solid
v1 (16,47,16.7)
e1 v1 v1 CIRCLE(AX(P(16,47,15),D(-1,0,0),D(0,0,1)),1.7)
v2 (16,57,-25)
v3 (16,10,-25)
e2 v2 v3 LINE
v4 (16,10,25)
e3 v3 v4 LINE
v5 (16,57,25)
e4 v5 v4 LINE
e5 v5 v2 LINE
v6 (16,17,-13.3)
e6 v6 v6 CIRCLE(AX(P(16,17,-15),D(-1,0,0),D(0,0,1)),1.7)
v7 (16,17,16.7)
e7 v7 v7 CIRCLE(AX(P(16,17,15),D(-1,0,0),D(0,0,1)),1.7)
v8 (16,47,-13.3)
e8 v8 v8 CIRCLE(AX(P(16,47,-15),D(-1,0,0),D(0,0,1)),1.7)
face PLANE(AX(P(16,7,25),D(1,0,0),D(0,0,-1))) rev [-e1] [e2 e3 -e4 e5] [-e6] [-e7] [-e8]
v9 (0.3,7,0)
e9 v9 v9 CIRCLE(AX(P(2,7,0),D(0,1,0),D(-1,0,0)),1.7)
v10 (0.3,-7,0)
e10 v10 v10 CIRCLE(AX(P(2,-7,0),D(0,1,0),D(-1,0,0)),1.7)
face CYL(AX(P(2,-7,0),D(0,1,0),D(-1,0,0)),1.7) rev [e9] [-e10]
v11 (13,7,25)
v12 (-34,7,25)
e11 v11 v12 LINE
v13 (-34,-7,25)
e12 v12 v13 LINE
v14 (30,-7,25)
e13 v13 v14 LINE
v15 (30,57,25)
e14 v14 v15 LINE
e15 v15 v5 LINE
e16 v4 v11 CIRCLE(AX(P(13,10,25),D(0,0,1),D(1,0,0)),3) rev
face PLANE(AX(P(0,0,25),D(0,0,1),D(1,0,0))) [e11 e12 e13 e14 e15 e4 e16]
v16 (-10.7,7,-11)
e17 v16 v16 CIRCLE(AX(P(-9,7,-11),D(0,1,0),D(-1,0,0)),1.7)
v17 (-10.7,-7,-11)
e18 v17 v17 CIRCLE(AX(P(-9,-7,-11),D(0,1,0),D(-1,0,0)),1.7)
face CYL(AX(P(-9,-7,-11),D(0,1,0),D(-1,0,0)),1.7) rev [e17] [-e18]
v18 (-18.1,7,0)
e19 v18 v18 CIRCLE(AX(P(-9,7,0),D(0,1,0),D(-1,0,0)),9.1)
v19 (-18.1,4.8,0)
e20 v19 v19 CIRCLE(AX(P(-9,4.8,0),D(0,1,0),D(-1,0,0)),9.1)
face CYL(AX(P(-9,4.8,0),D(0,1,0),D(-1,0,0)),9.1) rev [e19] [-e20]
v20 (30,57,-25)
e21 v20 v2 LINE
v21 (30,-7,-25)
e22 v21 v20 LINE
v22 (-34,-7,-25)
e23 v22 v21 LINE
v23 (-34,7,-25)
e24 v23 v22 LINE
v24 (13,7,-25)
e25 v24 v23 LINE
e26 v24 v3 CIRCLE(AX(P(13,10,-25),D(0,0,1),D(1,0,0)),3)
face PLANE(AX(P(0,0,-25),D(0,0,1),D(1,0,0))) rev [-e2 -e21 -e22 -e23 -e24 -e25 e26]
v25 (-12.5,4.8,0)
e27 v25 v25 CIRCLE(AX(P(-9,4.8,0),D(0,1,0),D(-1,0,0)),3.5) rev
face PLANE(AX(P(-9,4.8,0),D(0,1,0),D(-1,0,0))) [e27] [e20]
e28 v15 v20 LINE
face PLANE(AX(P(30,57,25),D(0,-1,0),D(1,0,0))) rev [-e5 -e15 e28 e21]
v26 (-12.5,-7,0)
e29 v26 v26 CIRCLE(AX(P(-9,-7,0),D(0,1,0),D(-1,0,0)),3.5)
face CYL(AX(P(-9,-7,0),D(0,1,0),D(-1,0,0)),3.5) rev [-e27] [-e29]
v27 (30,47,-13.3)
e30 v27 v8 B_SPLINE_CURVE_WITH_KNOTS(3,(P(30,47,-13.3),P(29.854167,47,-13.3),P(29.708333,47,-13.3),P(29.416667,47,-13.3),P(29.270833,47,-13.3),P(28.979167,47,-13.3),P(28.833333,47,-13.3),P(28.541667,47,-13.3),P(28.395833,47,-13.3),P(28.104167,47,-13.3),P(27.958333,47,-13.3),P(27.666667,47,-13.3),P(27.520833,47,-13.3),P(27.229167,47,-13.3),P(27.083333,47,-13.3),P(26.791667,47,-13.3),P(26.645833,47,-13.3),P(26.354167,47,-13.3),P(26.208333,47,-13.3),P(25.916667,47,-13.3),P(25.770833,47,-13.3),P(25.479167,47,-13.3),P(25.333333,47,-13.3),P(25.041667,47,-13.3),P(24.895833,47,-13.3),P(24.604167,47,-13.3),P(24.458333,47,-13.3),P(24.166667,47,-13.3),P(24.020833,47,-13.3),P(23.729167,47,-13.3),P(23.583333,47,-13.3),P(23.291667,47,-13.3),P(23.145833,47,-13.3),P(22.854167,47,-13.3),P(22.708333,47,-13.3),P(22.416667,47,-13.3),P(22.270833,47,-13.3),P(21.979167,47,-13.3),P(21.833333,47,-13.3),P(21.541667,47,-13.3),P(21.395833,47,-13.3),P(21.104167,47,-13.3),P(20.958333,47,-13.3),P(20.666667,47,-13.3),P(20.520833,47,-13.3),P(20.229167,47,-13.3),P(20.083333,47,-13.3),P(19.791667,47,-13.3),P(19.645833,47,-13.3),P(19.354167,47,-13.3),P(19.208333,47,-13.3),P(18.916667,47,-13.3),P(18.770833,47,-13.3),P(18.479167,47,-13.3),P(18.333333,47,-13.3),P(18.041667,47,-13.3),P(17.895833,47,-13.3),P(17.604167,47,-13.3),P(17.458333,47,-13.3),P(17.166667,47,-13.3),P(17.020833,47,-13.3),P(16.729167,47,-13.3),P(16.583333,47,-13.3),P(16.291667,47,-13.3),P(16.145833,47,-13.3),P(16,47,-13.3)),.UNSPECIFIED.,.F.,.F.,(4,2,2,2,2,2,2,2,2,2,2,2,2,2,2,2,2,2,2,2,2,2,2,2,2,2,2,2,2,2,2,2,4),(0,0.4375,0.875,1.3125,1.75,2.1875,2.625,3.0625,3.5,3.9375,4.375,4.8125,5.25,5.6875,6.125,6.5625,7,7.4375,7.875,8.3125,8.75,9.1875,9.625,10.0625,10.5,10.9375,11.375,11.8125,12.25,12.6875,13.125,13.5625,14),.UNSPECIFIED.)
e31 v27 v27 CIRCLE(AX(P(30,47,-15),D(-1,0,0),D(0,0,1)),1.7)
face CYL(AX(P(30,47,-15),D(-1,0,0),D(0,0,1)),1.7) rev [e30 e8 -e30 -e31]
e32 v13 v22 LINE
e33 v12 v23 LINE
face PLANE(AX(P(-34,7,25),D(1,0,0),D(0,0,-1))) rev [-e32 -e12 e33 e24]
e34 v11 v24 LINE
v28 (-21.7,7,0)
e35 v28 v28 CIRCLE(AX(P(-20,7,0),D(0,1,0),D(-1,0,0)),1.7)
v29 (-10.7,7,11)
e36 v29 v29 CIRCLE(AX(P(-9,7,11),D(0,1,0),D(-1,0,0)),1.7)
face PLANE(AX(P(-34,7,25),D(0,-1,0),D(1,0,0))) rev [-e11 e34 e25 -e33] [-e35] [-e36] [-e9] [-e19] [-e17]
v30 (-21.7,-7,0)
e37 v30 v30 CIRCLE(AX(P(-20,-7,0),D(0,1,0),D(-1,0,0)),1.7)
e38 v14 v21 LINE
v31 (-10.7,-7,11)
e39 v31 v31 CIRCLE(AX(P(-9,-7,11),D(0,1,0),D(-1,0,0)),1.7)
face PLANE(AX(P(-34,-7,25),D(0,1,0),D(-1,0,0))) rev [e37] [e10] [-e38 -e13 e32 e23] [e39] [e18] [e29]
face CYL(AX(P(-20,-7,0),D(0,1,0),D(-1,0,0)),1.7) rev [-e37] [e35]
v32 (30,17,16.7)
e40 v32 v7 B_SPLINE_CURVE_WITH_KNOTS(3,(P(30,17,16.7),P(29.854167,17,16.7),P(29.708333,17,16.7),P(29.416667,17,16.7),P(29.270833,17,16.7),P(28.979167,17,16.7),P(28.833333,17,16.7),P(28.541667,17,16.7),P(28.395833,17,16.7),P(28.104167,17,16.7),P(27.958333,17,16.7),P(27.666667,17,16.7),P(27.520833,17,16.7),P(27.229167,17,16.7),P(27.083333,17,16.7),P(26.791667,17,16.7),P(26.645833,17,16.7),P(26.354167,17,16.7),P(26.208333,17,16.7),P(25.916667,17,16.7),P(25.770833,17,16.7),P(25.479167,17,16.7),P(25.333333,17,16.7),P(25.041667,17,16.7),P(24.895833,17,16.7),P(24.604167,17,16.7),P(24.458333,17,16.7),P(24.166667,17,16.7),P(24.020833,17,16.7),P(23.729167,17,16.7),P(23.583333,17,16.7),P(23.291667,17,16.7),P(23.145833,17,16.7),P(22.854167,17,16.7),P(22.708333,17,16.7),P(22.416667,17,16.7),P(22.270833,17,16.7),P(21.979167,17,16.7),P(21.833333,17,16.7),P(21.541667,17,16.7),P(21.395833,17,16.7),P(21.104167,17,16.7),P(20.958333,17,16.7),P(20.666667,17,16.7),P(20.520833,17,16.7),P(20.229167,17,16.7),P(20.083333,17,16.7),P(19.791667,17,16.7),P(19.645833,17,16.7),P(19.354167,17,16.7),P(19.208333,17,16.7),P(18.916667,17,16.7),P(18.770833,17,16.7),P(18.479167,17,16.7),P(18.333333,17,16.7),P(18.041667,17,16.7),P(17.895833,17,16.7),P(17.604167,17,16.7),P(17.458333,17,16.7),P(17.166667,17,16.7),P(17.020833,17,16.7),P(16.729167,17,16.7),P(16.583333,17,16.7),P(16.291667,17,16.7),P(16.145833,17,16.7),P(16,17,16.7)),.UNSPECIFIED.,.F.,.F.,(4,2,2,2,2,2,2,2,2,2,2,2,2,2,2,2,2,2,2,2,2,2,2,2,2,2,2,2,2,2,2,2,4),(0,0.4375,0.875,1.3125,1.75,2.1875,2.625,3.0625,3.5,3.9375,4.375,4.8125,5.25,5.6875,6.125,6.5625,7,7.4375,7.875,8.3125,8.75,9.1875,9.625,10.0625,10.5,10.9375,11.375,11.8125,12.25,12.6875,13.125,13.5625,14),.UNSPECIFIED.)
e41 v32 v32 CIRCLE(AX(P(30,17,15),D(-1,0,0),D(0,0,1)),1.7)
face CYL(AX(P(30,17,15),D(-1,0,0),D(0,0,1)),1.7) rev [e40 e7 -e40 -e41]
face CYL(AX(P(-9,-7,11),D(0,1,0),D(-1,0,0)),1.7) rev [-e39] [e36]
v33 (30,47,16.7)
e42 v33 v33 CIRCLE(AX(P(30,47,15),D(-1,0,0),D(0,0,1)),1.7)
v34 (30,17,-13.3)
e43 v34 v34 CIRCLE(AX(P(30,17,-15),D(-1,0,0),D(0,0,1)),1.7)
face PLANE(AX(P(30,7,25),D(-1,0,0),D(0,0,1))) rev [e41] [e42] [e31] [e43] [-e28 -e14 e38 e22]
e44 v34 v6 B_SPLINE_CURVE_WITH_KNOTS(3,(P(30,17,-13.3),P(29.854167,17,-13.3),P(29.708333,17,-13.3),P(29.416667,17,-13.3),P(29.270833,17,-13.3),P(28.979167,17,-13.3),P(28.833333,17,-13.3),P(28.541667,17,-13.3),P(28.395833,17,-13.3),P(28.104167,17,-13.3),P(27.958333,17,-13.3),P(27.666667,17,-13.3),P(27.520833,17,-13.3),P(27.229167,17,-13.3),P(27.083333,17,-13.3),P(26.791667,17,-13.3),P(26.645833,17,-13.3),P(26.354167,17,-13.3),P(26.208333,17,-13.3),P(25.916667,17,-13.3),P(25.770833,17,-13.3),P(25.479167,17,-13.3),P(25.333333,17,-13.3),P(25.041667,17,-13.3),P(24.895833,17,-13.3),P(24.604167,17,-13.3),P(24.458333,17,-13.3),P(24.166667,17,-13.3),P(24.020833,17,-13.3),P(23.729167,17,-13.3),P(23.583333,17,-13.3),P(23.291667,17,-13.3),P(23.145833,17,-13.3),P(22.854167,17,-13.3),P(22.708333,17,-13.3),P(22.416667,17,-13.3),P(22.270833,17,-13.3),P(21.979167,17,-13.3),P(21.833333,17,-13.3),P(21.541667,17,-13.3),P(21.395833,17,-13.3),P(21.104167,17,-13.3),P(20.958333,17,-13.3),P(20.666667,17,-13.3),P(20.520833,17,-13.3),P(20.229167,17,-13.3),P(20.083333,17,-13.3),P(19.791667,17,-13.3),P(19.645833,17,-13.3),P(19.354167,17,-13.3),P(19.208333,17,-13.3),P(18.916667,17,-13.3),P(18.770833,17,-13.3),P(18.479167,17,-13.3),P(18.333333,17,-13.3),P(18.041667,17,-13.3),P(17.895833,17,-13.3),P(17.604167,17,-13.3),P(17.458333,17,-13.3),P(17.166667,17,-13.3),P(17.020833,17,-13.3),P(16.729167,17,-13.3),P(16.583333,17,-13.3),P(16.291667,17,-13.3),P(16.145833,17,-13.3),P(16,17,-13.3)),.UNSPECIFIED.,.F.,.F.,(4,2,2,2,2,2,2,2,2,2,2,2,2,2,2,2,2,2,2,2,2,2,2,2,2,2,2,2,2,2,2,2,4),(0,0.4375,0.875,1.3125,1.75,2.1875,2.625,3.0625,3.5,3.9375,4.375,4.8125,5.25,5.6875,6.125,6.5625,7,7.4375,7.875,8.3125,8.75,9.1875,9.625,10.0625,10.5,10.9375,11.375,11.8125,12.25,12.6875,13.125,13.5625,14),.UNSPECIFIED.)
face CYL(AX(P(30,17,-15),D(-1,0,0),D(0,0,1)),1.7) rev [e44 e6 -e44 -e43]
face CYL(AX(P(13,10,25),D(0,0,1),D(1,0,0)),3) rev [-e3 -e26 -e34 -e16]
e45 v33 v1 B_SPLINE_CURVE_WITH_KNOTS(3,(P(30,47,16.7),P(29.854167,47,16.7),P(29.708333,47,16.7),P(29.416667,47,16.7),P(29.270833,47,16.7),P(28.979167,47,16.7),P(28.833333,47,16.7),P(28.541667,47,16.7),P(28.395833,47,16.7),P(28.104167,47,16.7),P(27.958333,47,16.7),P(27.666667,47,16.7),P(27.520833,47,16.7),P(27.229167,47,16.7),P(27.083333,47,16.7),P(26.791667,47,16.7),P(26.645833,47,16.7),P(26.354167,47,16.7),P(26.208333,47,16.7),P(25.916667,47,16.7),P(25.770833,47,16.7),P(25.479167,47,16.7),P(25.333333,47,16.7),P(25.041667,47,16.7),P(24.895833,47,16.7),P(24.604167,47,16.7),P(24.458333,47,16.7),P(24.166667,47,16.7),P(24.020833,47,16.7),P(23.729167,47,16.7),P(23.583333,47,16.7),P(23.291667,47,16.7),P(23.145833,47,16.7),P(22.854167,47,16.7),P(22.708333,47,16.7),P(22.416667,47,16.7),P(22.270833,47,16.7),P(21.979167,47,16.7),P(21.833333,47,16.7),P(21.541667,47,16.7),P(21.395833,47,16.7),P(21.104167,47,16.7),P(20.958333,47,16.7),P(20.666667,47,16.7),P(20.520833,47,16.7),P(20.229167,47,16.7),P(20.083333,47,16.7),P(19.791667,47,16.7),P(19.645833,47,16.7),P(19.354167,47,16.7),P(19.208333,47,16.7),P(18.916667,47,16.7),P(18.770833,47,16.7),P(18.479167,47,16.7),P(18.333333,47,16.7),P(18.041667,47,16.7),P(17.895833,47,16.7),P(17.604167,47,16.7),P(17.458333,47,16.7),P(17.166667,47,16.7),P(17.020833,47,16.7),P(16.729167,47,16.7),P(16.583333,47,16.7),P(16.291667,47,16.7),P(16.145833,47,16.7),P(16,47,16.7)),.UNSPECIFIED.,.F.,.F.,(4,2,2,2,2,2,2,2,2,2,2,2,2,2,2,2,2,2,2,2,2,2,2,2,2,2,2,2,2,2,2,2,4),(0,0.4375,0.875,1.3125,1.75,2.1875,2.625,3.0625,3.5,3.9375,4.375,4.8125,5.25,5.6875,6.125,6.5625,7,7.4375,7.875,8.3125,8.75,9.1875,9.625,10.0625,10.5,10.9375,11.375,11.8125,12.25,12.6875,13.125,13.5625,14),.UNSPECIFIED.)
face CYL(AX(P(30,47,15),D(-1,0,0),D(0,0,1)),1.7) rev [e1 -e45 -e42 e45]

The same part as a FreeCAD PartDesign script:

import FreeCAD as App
import Part
import Sketcher


def edges_at(feature, points):
    """Names of the edges that pass closest to the given points."""
    edges = feature.Shape.Edges
    near = lambda p: min(range(len(edges)), key=lambda i: edges[i].distToShape(Part.Vertex(*p))[0])
    return sorted({f"Edge{near(p) + 1}" for p in points})

doc = App.newDocument("Part")
params = doc.addObject("Spreadsheet::Sheet", "Params")
for row, (alias, value) in enumerate([
    ("sketch1_width", "50 mm"),
    ("sketch1_width2", "64 mm"),
    ("pad1_length", "50 mm"),
    ("sketch2_diameter", "7 mm"),
    ("sketch3_diameter", "3.4 mm"),
    ("sketch4_diameter", "3.4 mm"),
    ("sketch5_diameter", "18.2 mm"),
    ("pocket4_length", "2.2 mm"),
    ("fillet_radius", "3 mm"),
], start=1):
    params.set(f"A{row}", alias)
    params.set(f"B{row}", "=" + value)
    params.setAlias(f"B{row}", alias)

body = doc.addObject("PartDesign::Body", "Body")

sketch1 = body.newObject("Sketcher::SketchObject", "Sketch")
sketch1.AttachmentSupport = (doc.getObject("XY_Plane"), [""])
sketch1.MapMode = "FlatFace"
sketch1.addGeometry(Part.LineSegment(App.Vector(16, 7, 0), App.Vector(-34, 7, 0)), False)
sketch1.addGeometry(Part.LineSegment(App.Vector(-34, 7, 0), App.Vector(-34, -7, 0)), False)
sketch1.addGeometry(Part.LineSegment(App.Vector(-34, -7, 0), App.Vector(30, -7, 0)), False)
sketch1.addGeometry(Part.LineSegment(App.Vector(30, -7, 0), App.Vector(30, 57, 0)), False)
sketch1.addGeometry(Part.LineSegment(App.Vector(30, 57, 0), App.Vector(16, 57, 0)), False)
sketch1.addGeometry(Part.LineSegment(App.Vector(16, 57, 0), App.Vector(16, 7, 0)), False)
sketch1.addConstraint(Sketcher.Constraint("Coincident", 0, 2, 1, 1))
sketch1.addConstraint(Sketcher.Constraint("Coincident", 1, 2, 2, 1))
sketch1.addConstraint(Sketcher.Constraint("Coincident", 2, 2, 3, 1))
sketch1.addConstraint(Sketcher.Constraint("Coincident", 3, 2, 4, 1))
sketch1.addConstraint(Sketcher.Constraint("Coincident", 4, 2, 5, 1))
sketch1.addConstraint(Sketcher.Constraint("Coincident", 5, 2, 0, 1))
sketch1.addConstraint(Sketcher.Constraint("Horizontal", 0))
sketch1.addConstraint(Sketcher.Constraint("Vertical", 1))
sketch1.addConstraint(Sketcher.Constraint("Horizontal", 2))
sketch1.addConstraint(Sketcher.Constraint("Vertical", 3))
sketch1.addConstraint(Sketcher.Constraint("Horizontal", 4))
sketch1.addConstraint(Sketcher.Constraint("Vertical", 5))
sketch1.addConstraint(Sketcher.Constraint("Equal", 4, 1))
sketch1.addConstraint(Sketcher.Constraint("Equal", 2, 3))
sketch1.addConstraint(Sketcher.Constraint("DistanceX", 0, 2, 0, 1, 50.0))
sketch1.addConstraint(Sketcher.Constraint("DistanceX", 2, 1, 2, 2, 64.0))
sketch1.addConstraint(Sketcher.Constraint("DistanceX", 0, 2, -1, 1, 34.0))
sketch1.addConstraint(Sketcher.Constraint("DistanceY", -1, 1, 0, 2, 7.0))
sketch1.setExpression("Constraints[14]", "Params.sketch1_width")
sketch1.setExpression("Constraints[15]", "Params.sketch1_width2")
pad1 = body.newObject("PartDesign::Pad", "Pad")
pad1.Profile = sketch1
pad1.setExpression("Length", "Params.pad1_length")
pad1.Midplane = True

sketch2 = body.newObject("Sketcher::SketchObject", "Sketch001")
sketch2.AttachmentSupport = (doc.getObject("XZ_Plane"), [""])
sketch2.MapMode = "FlatFace"
sketch2.AttachmentOffset = App.Placement(App.Vector(0, 0, -7), App.Rotation())
sketch2.addGeometry(Part.Circle(App.Vector(-9, 0, 0), App.Vector(0, 0, 1), 3.5), False)
sketch2.addConstraint(Sketcher.Constraint("PointOnObject", 0, 3, -1))
sketch2.addConstraint(Sketcher.Constraint("Diameter", 0, 7.0))
sketch2.addConstraint(Sketcher.Constraint("DistanceX", 0, 3, -1, 1, 9.0))
sketch2.setExpression("Constraints[1]", "Params.sketch2_diameter")
pocket1 = body.newObject("PartDesign::Pocket", "Pocket")
pocket1.Profile = sketch2
pocket1.Type = "ThroughAll"
pocket1.Reversed = True

sketch3 = body.newObject("Sketcher::SketchObject", "Sketch002")
sketch3.AttachmentSupport = (doc.getObject("XZ_Plane"), [""])
sketch3.MapMode = "FlatFace"
sketch3.AttachmentOffset = App.Placement(App.Vector(0, 0, -7), App.Rotation())
sketch3.addGeometry(Part.Circle(App.Vector(-9, -11, 0), App.Vector(0, 0, 1), 1.7), False)
sketch3.addGeometry(Part.Circle(App.Vector(-20, 0, 0), App.Vector(0, 0, 1), 1.7), False)
sketch3.addGeometry(Part.Circle(App.Vector(-9, 11, 0), App.Vector(0, 0, 1), 1.7), False)
sketch3.addGeometry(Part.Circle(App.Vector(2, 0, 0), App.Vector(0, 0, 1), 1.7), False)
sketch3.addConstraint(Sketcher.Constraint("Equal", 0, 1))
sketch3.addConstraint(Sketcher.Constraint("Equal", 1, 2))
sketch3.addConstraint(Sketcher.Constraint("Equal", 2, 3))
sketch3.addConstraint(Sketcher.Constraint("Symmetric", 0, 3, 2, 3, -1))
sketch3.addConstraint(Sketcher.Constraint("PointOnObject", 1, 3, -1))
sketch3.addConstraint(Sketcher.Constraint("PointOnObject", 3, 3, -1))
sketch3.addConstraint(Sketcher.Constraint("Diameter", 0, 3.4))
sketch3.addConstraint(Sketcher.Constraint("DistanceX", 0, 3, -1, 1, 9.0))
sketch3.addConstraint(Sketcher.Constraint("DistanceY", 0, 3, -1, 1, 11.0))
sketch3.addConstraint(Sketcher.Constraint("DistanceX", 1, 3, -1, 1, 20.0))
sketch3.addConstraint(Sketcher.Constraint("DistanceX", -1, 1, 3, 3, 2.0))
sketch3.setExpression("Constraints[6]", "Params.sketch3_diameter")
pocket2 = body.newObject("PartDesign::Pocket", "Pocket001")
pocket2.Profile = sketch3
pocket2.Type = "ThroughAll"
pocket2.Reversed = True

sketch4 = body.newObject("Sketcher::SketchObject", "Sketch003")
sketch4.AttachmentSupport = (doc.getObject("YZ_Plane"), [""])
sketch4.MapMode = "FlatFace"
sketch4.AttachmentOffset = App.Placement(App.Vector(0, 0, 16), App.Rotation())
sketch4.addGeometry(Part.Circle(App.Vector(47, -15, 0), App.Vector(0, 0, 1), 1.7), False)
sketch4.addGeometry(Part.Circle(App.Vector(17, -15, 0), App.Vector(0, 0, 1), 1.7), False)
sketch4.addGeometry(Part.Circle(App.Vector(17, 15, 0), App.Vector(0, 0, 1), 1.7), False)
sketch4.addGeometry(Part.Circle(App.Vector(47, 15, 0), App.Vector(0, 0, 1), 1.7), False)
sketch4.addConstraint(Sketcher.Constraint("Equal", 0, 1))
sketch4.addConstraint(Sketcher.Constraint("Equal", 1, 2))
sketch4.addConstraint(Sketcher.Constraint("Equal", 2, 3))
sketch4.addConstraint(Sketcher.Constraint("Symmetric", 1, 3, 2, 3, -1))
sketch4.addConstraint(Sketcher.Constraint("Symmetric", 0, 3, 3, 3, -1))
sketch4.addConstraint(Sketcher.Constraint("Horizontal", 0, 3, 1, 3))
sketch4.addConstraint(Sketcher.Constraint("Diameter", 0, 3.4))
sketch4.addConstraint(Sketcher.Constraint("DistanceX", -1, 1, 0, 3, 47.0))
sketch4.addConstraint(Sketcher.Constraint("DistanceY", 0, 3, -1, 1, 15.0))
sketch4.addConstraint(Sketcher.Constraint("DistanceX", -1, 1, 1, 3, 17.0))
sketch4.setExpression("Constraints[6]", "Params.sketch4_diameter")
pocket3 = body.newObject("PartDesign::Pocket", "Pocket002")
pocket3.Profile = sketch4
pocket3.Type = "ThroughAll"
pocket3.Reversed = True

sketch5 = body.newObject("Sketcher::SketchObject", "Sketch004")
sketch5.AttachmentSupport = (doc.getObject("XZ_Plane"), [""])
sketch5.MapMode = "FlatFace"
sketch5.AttachmentOffset = App.Placement(App.Vector(0, 0, -7), App.Rotation())
sketch5.addGeometry(Part.Circle(App.Vector(-9, 0, 0), App.Vector(0, 0, 1), 9), False)
sketch5.addConstraint(Sketcher.Constraint("PointOnObject", 0, 3, -1))
sketch5.addConstraint(Sketcher.Constraint("Diameter", 0, 18.2))
sketch5.addConstraint(Sketcher.Constraint("DistanceX", 0, 3, -1, 1, 9.0))
sketch5.setExpression("Constraints[1]", "Params.sketch5_diameter")
pocket4 = body.newObject("PartDesign::Pocket", "Pocket003")
pocket4.Profile = sketch5
pocket4.setExpression("Length", "Params.pocket4_length")
pocket4.Reversed = True
doc.recompute()

fillet = body.newObject("PartDesign::Fillet", "Fillet")
fillet.Base = (pocket4, edges_at(pocket4, [(16, 7, 0)]))
fillet.setExpression("Radius", "Params.fillet_radius")

doc.recompute()
